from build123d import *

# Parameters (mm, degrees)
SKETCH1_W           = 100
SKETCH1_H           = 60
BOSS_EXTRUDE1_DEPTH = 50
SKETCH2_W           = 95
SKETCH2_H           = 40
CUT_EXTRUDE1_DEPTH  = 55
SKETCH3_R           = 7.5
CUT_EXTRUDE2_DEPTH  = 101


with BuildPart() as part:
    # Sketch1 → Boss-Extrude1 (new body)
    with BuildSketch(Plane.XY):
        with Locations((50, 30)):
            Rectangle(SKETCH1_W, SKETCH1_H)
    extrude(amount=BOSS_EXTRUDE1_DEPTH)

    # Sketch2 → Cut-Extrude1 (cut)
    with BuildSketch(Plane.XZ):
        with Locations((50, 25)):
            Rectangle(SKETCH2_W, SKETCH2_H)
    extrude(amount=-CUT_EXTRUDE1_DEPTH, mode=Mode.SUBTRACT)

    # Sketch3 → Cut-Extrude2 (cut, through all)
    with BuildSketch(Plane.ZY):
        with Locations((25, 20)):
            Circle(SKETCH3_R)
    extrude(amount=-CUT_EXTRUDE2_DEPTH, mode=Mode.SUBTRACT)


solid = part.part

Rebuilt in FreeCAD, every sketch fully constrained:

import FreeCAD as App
import Part
import Sketcher
from FreeCAD import Vector
Q = App.Units.Quantity

doc = App.newDocument("Part")
params = doc.addObject("Spreadsheet::Sheet", "Params")
for row, (alias, value) in enumerate([
    ("sketch1_width", "100 mm"),
    ("sketch1_height", "60 mm"),
    ("pad1_length", "50 mm"),
    ("sketch2_width", "95 mm"),
    ("sketch2_height", "40 mm"),
    ("pocket1_length", "55 mm"),
    ("sketch3_diameter", "15 mm"),
], start=1):
    params.set(f"A{row}", alias)
    params.set(f"B{row}", "=" + value)
    params.setAlias(f"B{row}", alias)

body = doc.addObject("PartDesign::Body", "Body")

sketch1 = doc.addObject("Sketcher::SketchObject", "Sketch")
body.addObject(sketch1)
sketch1.AttachmentSupport = (doc.XY_Plane, [""])
sketch1.MapMode = "FlatFace"
sketch1.addGeometry(Part.LineSegment(Vector(0, 60, 0), Vector(0, 0, 0)), False)
sketch1.addGeometry(Part.LineSegment(Vector(0, 0, 0), Vector(100, 0, 0)), False)
sketch1.addGeometry(Part.LineSegment(Vector(100, 0, 0), Vector(100, 60, 0)), False)
sketch1.addGeometry(Part.LineSegment(Vector(100, 60, 0), Vector(0, 60, 0)), False)
sketch1.addConstraint(Sketcher.Constraint("Coincident", 0, 2, 1, 1))
sketch1.addConstraint(Sketcher.Constraint("Coincident", 1, 2, 2, 1))
sketch1.addConstraint(Sketcher.Constraint("Coincident", 2, 2, 3, 1))
sketch1.addConstraint(Sketcher.Constraint("Coincident", 3, 2, 0, 1))
sketch1.addConstraint(Sketcher.Constraint("Vertical", 0))
sketch1.addConstraint(Sketcher.Constraint("Horizontal", 1))
sketch1.addConstraint(Sketcher.Constraint("Vertical", 2))
sketch1.addConstraint(Sketcher.Constraint("Horizontal", 3))
sketch1.addConstraint(Sketcher.Constraint("Coincident", 0, 2, -1, 1))
sketch1.addConstraint(Sketcher.Constraint("DistanceX", 1, 1, 1, 2, Q("100 mm")))
sketch1.addConstraint(Sketcher.Constraint("DistanceY", 0, 2, 0, 1, Q("60 mm")))
sketch1.setExpression("Constraints[9]", "Params.sketch1_width")
sketch1.setExpression("Constraints[10]", "Params.sketch1_height")
pad1 = doc.addObject("PartDesign::Pad", "Pad")
body.addObject(pad1)
pad1.Profile = sketch1
pad1.setExpression("Length", "Params.pad1_length")

sketch2 = doc.addObject("Sketcher::SketchObject", "Sketch001")
body.addObject(sketch2)
sketch2.AttachmentSupport = (doc.XZ_Plane, [""])
sketch2.MapMode = "FlatFace"
sketch2.addGeometry(Part.LineSegment(Vector(2, 45, 0), Vector(2, 5, 0)), False)
sketch2.addGeometry(Part.LineSegment(Vector(2, 5, 0), Vector(98, 5, 0)), False)
sketch2.addGeometry(Part.LineSegment(Vector(98, 5, 0), Vector(98, 45, 0)), False)
sketch2.addGeometry(Part.LineSegment(Vector(98, 45, 0), Vector(2, 45, 0)), False)
sketch2.addConstraint(Sketcher.Constraint("Coincident", 0, 2, 1, 1))
sketch2.addConstraint(Sketcher.Constraint("Coincident", 1, 2, 2, 1))
sketch2.addConstraint(Sketcher.Constraint("Coincident", 2, 2, 3, 1))
sketch2.addConstraint(Sketcher.Constraint("Coincident", 3, 2, 0, 1))
sketch2.addConstraint(Sketcher.Constraint("Vertical", 0))
sketch2.addConstraint(Sketcher.Constraint("Horizontal", 1))
sketch2.addConstraint(Sketcher.Constraint("Vertical", 2))
sketch2.addConstraint(Sketcher.Constraint("Horizontal", 3))
sketch2.addConstraint(Sketcher.Constraint("DistanceX", 1, 1, 1, 2, Q("95 mm")))
sketch2.addConstraint(Sketcher.Constraint("DistanceY", 0, 2, 0, 1, Q("40 mm")))
sketch2.addConstraint(Sketcher.Constraint("DistanceY", -1, 1, 0, 2, Q("5 mm")))
sketch2.addConstraint(Sketcher.Constraint("DistanceX", -1, 1, 0, 2, Q("2.5 mm")))
sketch2.setExpression("Constraints[8]", "Params.sketch2_width")
sketch2.setExpression("Constraints[9]", "Params.sketch2_height")
pocket1 = doc.addObject("PartDesign::Pocket", "Pocket")
body.addObject(pocket1)
pocket1.Profile = sketch2
pocket1.setExpression("Length", "Params.pocket1_length")

sketch3 = doc.addObject("Sketcher::SketchObject", "Sketch002")
body.addObject(sketch3)
sketch3.AttachmentSupport = (doc.YZ_Plane, [""])
sketch3.MapMode = "FlatFace"
sketch3.addGeometry(Part.Circle(Vector(20, 25, 0), Vector(0, 0, 1), 8), False)
sketch3.addConstraint(Sketcher.Constraint("Diameter", 0, Q("15 mm")))
sketch3.addConstraint(Sketcher.Constraint("DistanceX", -1, 1, 0, 3, Q("20 mm")))
sketch3.addConstraint(Sketcher.Constraint("DistanceY", -1, 1, 0, 3, Q("25 mm")))
sketch3.setExpression("Constraints[0]", "Params.sketch3_diameter")
pocket2 = doc.addObject("PartDesign::Pocket", "Pocket001")
body.addObject(pocket2)
pocket2.Profile = sketch3
pocket2.Type = "ThroughAll"
pocket2.Reversed = True

doc.recompute()
